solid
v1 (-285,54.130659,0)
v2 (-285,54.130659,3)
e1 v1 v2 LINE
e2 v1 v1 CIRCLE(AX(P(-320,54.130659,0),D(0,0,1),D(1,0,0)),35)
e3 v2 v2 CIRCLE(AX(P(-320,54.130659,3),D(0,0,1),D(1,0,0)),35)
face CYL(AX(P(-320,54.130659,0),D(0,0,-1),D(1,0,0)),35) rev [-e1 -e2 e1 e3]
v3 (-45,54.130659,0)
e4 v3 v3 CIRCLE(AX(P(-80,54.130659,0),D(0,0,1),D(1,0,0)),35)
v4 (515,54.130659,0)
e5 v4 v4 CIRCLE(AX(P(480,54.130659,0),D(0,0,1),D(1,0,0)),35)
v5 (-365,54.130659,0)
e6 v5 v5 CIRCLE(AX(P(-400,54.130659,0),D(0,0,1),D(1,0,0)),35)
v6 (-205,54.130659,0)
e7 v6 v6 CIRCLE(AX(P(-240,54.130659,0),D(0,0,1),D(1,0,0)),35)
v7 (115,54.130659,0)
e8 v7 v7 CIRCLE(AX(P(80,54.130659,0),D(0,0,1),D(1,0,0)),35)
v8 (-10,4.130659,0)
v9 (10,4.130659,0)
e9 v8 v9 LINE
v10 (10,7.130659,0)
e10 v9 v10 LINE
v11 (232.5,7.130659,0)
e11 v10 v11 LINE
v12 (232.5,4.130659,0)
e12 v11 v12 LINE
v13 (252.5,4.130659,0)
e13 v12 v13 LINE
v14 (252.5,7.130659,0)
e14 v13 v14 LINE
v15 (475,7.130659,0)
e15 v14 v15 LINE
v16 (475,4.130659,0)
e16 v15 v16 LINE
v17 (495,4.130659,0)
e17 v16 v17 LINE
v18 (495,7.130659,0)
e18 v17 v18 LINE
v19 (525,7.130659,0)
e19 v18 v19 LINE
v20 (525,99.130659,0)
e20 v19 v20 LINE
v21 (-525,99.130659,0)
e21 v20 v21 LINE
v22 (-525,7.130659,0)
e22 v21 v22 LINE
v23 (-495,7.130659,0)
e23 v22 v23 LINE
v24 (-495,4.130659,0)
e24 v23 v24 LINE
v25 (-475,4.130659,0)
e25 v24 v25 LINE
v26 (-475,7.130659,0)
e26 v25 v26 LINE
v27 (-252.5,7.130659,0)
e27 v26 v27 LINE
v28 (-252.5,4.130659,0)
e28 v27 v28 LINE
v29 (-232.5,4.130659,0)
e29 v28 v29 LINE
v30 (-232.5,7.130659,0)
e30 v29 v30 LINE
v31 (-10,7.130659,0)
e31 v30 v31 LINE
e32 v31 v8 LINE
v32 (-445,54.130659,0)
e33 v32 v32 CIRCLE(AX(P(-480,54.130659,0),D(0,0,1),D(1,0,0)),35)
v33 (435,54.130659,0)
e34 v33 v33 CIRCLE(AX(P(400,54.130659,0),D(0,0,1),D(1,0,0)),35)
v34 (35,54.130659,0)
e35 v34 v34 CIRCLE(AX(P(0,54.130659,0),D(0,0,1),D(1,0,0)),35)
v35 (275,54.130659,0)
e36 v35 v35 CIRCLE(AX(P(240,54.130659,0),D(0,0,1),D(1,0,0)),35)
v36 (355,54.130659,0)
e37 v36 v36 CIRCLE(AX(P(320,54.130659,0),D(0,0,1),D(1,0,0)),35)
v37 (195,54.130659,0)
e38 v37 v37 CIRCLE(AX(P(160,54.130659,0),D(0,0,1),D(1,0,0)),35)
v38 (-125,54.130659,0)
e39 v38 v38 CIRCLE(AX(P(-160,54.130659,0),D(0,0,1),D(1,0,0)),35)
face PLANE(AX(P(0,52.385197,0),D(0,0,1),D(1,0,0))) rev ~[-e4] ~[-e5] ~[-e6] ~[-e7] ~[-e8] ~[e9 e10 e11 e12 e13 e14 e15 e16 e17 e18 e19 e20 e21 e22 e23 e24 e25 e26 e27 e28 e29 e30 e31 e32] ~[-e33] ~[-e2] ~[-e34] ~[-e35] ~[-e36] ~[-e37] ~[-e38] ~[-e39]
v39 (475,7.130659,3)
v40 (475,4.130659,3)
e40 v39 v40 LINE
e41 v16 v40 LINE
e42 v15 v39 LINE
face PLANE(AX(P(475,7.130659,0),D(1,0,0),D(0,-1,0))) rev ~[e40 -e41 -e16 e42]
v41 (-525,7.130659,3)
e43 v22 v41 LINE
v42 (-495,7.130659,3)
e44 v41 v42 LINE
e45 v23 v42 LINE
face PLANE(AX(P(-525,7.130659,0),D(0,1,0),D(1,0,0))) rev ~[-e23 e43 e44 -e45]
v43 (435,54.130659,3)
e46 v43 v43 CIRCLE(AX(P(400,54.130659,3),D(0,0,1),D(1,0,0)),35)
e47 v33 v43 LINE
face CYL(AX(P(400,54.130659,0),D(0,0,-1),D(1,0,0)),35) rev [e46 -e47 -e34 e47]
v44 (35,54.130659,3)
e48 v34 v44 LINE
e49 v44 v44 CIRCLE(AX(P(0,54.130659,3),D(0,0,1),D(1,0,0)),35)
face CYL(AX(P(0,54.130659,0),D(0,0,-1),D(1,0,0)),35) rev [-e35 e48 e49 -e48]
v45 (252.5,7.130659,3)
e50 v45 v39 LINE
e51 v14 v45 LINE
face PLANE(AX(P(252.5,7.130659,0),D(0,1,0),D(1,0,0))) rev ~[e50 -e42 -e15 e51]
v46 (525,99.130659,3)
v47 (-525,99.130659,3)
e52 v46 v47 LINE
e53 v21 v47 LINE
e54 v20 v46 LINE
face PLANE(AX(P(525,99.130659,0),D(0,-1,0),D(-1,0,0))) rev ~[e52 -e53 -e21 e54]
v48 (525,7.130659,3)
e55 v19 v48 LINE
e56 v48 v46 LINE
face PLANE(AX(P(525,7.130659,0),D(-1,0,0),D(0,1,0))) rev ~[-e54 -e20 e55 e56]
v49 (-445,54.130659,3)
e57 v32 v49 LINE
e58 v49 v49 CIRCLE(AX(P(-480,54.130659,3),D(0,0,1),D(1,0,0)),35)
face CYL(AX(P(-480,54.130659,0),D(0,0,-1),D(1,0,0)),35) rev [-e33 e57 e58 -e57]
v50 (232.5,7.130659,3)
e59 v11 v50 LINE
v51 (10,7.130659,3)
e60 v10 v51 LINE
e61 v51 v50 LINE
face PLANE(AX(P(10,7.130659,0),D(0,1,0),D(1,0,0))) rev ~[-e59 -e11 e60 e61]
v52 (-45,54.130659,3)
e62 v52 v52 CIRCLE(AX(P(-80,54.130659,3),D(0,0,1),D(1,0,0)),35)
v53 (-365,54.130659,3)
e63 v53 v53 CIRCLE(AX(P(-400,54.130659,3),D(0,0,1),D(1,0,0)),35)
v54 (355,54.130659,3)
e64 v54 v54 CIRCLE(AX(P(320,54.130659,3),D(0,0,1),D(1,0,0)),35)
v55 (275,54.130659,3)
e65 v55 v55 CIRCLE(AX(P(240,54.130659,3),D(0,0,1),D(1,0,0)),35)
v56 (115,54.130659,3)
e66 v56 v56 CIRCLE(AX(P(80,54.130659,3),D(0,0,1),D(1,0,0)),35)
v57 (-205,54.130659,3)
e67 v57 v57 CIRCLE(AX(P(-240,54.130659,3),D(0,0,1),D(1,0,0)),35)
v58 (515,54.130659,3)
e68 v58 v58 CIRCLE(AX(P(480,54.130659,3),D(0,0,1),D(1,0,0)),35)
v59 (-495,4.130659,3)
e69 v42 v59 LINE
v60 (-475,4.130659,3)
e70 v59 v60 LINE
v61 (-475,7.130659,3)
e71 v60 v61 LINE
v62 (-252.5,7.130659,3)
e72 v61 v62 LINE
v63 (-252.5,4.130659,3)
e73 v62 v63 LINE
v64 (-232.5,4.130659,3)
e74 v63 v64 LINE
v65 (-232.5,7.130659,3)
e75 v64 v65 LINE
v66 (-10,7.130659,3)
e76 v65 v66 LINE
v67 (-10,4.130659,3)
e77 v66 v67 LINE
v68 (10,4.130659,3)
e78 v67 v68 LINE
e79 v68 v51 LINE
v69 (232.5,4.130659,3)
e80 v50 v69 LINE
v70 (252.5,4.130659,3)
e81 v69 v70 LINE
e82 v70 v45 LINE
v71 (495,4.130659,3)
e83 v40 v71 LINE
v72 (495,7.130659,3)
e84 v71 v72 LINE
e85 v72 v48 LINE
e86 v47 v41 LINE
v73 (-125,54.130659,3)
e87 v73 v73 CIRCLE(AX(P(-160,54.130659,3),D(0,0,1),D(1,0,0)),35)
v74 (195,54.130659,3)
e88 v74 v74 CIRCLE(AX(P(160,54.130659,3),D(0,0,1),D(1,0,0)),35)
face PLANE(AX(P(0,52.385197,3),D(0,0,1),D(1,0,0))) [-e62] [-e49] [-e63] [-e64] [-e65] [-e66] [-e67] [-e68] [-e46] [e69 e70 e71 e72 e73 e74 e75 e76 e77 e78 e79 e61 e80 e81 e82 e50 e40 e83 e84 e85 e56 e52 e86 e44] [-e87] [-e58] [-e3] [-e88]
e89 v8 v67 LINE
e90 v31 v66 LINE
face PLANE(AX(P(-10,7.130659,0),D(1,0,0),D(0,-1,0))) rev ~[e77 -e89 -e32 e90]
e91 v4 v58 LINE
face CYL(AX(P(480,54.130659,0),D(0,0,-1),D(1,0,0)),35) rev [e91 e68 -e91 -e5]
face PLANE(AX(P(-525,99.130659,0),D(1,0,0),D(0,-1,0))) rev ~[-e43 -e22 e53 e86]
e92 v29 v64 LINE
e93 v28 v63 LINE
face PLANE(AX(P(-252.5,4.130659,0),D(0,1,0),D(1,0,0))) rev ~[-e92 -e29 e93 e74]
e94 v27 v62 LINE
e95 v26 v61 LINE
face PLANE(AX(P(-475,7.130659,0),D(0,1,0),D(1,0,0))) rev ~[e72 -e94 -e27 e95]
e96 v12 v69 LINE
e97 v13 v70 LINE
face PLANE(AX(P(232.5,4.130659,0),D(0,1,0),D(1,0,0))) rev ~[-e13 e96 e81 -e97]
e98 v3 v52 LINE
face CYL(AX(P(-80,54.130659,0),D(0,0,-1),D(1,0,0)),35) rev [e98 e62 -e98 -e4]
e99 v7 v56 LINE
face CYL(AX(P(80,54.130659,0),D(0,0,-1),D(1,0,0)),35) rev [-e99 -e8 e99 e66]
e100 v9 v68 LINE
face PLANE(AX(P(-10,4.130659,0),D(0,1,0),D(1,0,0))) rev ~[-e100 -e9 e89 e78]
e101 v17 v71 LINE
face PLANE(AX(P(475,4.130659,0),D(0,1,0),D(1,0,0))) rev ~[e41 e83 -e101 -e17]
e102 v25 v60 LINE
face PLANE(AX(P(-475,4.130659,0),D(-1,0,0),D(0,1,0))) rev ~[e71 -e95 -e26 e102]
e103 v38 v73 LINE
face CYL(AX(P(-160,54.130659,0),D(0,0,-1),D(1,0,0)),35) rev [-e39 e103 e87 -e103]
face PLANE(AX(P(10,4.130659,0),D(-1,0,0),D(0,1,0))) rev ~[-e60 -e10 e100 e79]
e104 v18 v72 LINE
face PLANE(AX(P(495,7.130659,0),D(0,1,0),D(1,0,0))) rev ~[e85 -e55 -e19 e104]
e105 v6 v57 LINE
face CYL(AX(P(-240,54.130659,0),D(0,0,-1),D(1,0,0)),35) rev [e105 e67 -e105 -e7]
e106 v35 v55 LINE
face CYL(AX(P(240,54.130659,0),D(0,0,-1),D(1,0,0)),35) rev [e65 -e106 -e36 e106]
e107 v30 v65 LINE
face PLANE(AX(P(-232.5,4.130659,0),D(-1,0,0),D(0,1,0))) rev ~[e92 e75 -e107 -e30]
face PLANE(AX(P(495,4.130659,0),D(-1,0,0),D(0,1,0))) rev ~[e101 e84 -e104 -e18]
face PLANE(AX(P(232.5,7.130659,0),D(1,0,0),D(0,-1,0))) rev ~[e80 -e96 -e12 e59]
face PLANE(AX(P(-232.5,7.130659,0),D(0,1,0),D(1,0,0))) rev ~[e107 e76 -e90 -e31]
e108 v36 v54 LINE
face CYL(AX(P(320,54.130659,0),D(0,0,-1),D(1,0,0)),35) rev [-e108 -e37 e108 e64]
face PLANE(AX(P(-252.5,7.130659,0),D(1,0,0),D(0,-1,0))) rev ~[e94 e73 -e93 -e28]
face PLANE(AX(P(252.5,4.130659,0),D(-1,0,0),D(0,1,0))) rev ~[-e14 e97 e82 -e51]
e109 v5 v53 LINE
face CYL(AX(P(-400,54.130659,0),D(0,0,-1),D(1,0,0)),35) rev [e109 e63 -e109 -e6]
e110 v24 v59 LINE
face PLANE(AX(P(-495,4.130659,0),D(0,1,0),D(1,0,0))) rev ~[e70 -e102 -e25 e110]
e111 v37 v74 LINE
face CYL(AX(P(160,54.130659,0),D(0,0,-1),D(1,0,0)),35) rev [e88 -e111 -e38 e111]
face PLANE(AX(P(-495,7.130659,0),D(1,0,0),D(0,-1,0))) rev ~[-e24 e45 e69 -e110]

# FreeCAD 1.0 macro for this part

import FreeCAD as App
import Part
import Sketcher

doc = App.newDocument("Part")
body = doc.addObject("PartDesign::Body", "Body")

# Sketch on XY plane
sketch1 = body.newObject("Sketcher::SketchObject", "Sketch")
sketch1.AttachmentSupport = (doc.getObject("XY_Plane"), [""])
sketch1.MapMode = "FlatFace"
sketch1.addGeometry(Part.LineSegment(App.Vector(525, 99.130659, 0), App.Vector(-525, 99.130659, 0)), False)
sketch1.addGeometry(Part.LineSegment(App.Vector(-525, 99.130659, 0), App.Vector(-525, 7.130659, 0)), False)
sketch1.addGeometry(Part.LineSegment(App.Vector(-525, 7.130659, 0), App.Vector(-495, 7.130659, 0)), False)
sketch1.addGeometry(Part.LineSegment(App.Vector(-495, 7.130659, 0), App.Vector(-495, 4.130659, 0)), False)
sketch1.addGeometry(Part.LineSegment(App.Vector(-495, 4.130659, 0), App.Vector(-475, 4.130659, 0)), False)
sketch1.addGeometry(Part.LineSegment(App.Vector(-475, 4.130659, 0), App.Vector(-475, 7.130659, 0)), False)
sketch1.addGeometry(Part.LineSegment(App.Vector(-475, 7.130659, 0), App.Vector(-252.5, 7.130659, 0)), False)
sketch1.addGeometry(Part.LineSegment(App.Vector(-252.5, 7.130659, 0), App.Vector(-252.5, 4.130659, 0)), False)
sketch1.addGeometry(Part.LineSegment(App.Vector(-252.5, 4.130659, 0), App.Vector(-232.5, 4.130659, 0)), False)
sketch1.addGeometry(Part.LineSegment(App.Vector(-232.5, 4.130659, 0), App.Vector(-232.5, 7.130659, 0)), False)
sketch1.addGeometry(Part.LineSegment(App.Vector(-232.5, 7.130659, 0), App.Vector(-10, 7.130659, 0)), False)
sketch1.addGeometry(Part.LineSegment(App.Vector(-10, 7.130659, 0), App.Vector(-10, 4.130659, 0)), False)
sketch1.addGeometry(Part.LineSegment(App.Vector(-10, 4.130659, 0), App.Vector(10, 4.130659, 0)), False)
sketch1.addGeometry(Part.LineSegment(App.Vector(10, 4.130659, 0), App.Vector(10, 7.130659, 0)), False)
sketch1.addGeometry(Part.LineSegment(App.Vector(10, 7.130659, 0), App.Vector(232.5, 7.130659, 0)), False)
sketch1.addGeometry(Part.LineSegment(App.Vector(232.5, 7.130659, 0), App.Vector(232.5, 4.130659, 0)), False)
sketch1.addGeometry(Part.LineSegment(App.Vector(232.5, 4.130659, 0), App.Vector(252.5, 4.130659, 0)), False)
sketch1.addGeometry(Part.LineSegment(App.Vector(252.5, 4.130659, 0), App.Vector(252.5, 7.130659, 0)), False)
sketch1.addGeometry(Part.LineSegment(App.Vector(252.5, 7.130659, 0), App.Vector(475, 7.130659, 0)), False)
sketch1.addGeometry(Part.LineSegment(App.Vector(475, 7.130659, 0), App.Vector(475, 4.130659, 0)), False)
sketch1.addGeometry(Part.LineSegment(App.Vector(475, 4.130659, 0), App.Vector(495, 4.130659, 0)), False)
sketch1.addGeometry(Part.LineSegment(App.Vector(495, 4.130659, 0), App.Vector(495, 7.130659, 0)), False)
sketch1.addGeometry(Part.LineSegment(App.Vector(495, 7.130659, 0), App.Vector(525, 7.130659, 0)), False)
sketch1.addGeometry(Part.LineSegment(App.Vector(525, 7.130659, 0), App.Vector(525, 99.130659, 0)), False)
sketch1.addGeometry(Part.Circle(App.Vector(-480, 54.130659, 0), App.Vector(0, 0, 1), 35), False)
sketch1.addGeometry(Part.Circle(App.Vector(-400, 54.130659, 0), App.Vector(0, 0, 1), 35), False)
sketch1.addGeometry(Part.Circle(App.Vector(-320, 54.130659, 0), App.Vector(0, 0, 1), 35), False)
sketch1.addGeometry(Part.Circle(App.Vector(-240, 54.130659, 0), App.Vector(0, 0, 1), 35), False)
sketch1.addGeometry(Part.Circle(App.Vector(-160, 54.130659, 0), App.Vector(0, 0, 1), 35), False)
sketch1.addGeometry(Part.Circle(App.Vector(-80, 54.130659, 0), App.Vector(0, 0, 1), 35), False)
sketch1.addGeometry(Part.Circle(App.Vector(0, 54.130659, 0), App.Vector(0, 0, 1), 35), False)
sketch1.addGeometry(Part.Circle(App.Vector(80, 54.130659, 0), App.Vector(0, 0, 1), 35), False)
sketch1.addGeometry(Part.Circle(App.Vector(160, 54.130659, 0), App.Vector(0, 0, 1), 35), False)
sketch1.addGeometry(Part.Circle(App.Vector(240, 54.130659, 0), App.Vector(0, 0, 1), 35), False)
sketch1.addGeometry(Part.Circle(App.Vector(320, 54.130659, 0), App.Vector(0, 0, 1), 35), False)
sketch1.addGeometry(Part.Circle(App.Vector(400, 54.130659, 0), App.Vector(0, 0, 1), 35), False)
sketch1.addGeometry(Part.Circle(App.Vector(480, 54.130659, 0), App.Vector(0, 0, 1), 35), False)
sketch1.addConstraint(Sketcher.Constraint("Coincident", 0, 2, 1, 1))
sketch1.addConstraint(Sketcher.Constraint("Coincident", 1, 2, 2, 1))
sketch1.addConstraint(Sketcher.Constraint("Coincident", 2, 2, 3, 1))
sketch1.addConstraint(Sketcher.Constraint("Coincident", 3, 2, 4, 1))
sketch1.addConstraint(Sketcher.Constraint("Coincident", 4, 2, 5, 1))
sketch1.addConstraint(Sketcher.Constraint("Coincident", 5, 2, 6, 1))
sketch1.addConstraint(Sketcher.Constraint("Coincident", 6, 2, 7, 1))
sketch1.addConstraint(Sketcher.Constraint("Coincident", 7, 2, 8, 1))
sketch1.addConstraint(Sketcher.Constraint("Coincident", 8, 2, 9, 1))
sketch1.addConstraint(Sketcher.Constraint("Coincident", 9, 2, 10, 1))
sketch1.addConstraint(Sketcher.Constraint("Coincident", 10, 2, 11, 1))
sketch1.addConstraint(Sketcher.Constraint("Coincident", 11, 2, 12, 1))
sketch1.addConstraint(Sketcher.Constraint("Coincident", 12, 2, 13, 1))
sketch1.addConstraint(Sketcher.Constraint("Coincident", 13, 2, 14, 1))
sketch1.addConstraint(Sketcher.Constraint("Coincident", 14, 2, 15, 1))
sketch1.addConstraint(Sketcher.Constraint("Coincident", 15, 2, 16, 1))
sketch1.addConstraint(Sketcher.Constraint("Coincident", 16, 2, 17, 1))
sketch1.addConstraint(Sketcher.Constraint("Coincident", 17, 2, 18, 1))
sketch1.addConstraint(Sketcher.Constraint("Coincident", 18, 2, 19, 1))
sketch1.addConstraint(Sketcher.Constraint("Coincident", 19, 2, 20, 1))
sketch1.addConstraint(Sketcher.Constraint("Coincident", 20, 2, 21, 1))
sketch1.addConstraint(Sketcher.Constraint("Coincident", 21, 2, 22, 1))
sketch1.addConstraint(Sketcher.Constraint("Coincident", 22, 2, 23, 1))
sketch1.addConstraint(Sketcher.Constraint("Coincident", 23, 2, 0, 1))
sketch1.addConstraint(Sketcher.Constraint("Horizontal", 0))
sketch1.addConstraint(Sketcher.Constraint("Vertical", 1))
sketch1.addConstraint(Sketcher.Constraint("Horizontal", 2))
sketch1.addConstraint(Sketcher.Constraint("Vertical", 3))
sketch1.addConstraint(Sketcher.Constraint("Horizontal", 4))
sketch1.addConstraint(Sketcher.Constraint("Vertical", 5))
sketch1.addConstraint(Sketcher.Constraint("Horizontal", 6))
sketch1.addConstraint(Sketcher.Constraint("Vertical", 7))
sketch1.addConstraint(Sketcher.Constraint("Horizontal", 8))
sketch1.addConstraint(Sketcher.Constraint("Vertical", 9))
sketch1.addConstraint(Sketcher.Constraint("Horizontal", 10))
sketch1.addConstraint(Sketcher.Constraint("Vertical", 11))
sketch1.addConstraint(Sketcher.Constraint("Horizontal", 12))
sketch1.addConstraint(Sketcher.Constraint("Vertical", 13))
sketch1.addConstraint(Sketcher.Constraint("Horizontal", 14))
sketch1.addConstraint(Sketcher.Constraint("Vertical", 15))
sketch1.addConstraint(Sketcher.Constraint("Horizontal", 16))
sketch1.addConstraint(Sketcher.Constraint("Vertical", 17))
sketch1.addConstraint(Sketcher.Constraint("Horizontal", 18))
sketch1.addConstraint(Sketcher.Constraint("Vertical", 19))
sketch1.addConstraint(Sketcher.Constraint("Horizontal", 20))
sketch1.addConstraint(Sketcher.Constraint("Vertical", 21))
sketch1.addConstraint(Sketcher.Constraint("Horizontal", 22))
sketch1.addConstraint(Sketcher.Constraint("Vertical", 23))
sketch1.addConstraint(Sketcher.Constraint("Equal", 24, 25))
sketch1.addConstraint(Sketcher.Constraint("Equal", 25, 26))
sketch1.addConstraint(Sketcher.Constraint("Equal", 26, 27))
sketch1.addConstraint(Sketcher.Constraint("Equal", 27, 28))
sketch1.addConstraint(Sketcher.Constraint("Equal", 28, 29))
sketch1.addConstraint(Sketcher.Constraint("Equal", 29, 30))
sketch1.addConstraint(Sketcher.Constraint("Equal", 30, 31))
sketch1.addConstraint(Sketcher.Constraint("Equal", 31, 32))
sketch1.addConstraint(Sketcher.Constraint("Equal", 32, 33))
sketch1.addConstraint(Sketcher.Constraint("Equal", 33, 34))
sketch1.addConstraint(Sketcher.Constraint("Equal", 34, 35))
sketch1.addConstraint(Sketcher.Constraint("Equal", 35, 36))
sketch1.addConstraint(Sketcher.Constraint("Symmetric", 29, 3, 31, 3, -2))
sketch1.addConstraint(Sketcher.Constraint("Symmetric", 28, 3, 32, 3, -2))
sketch1.addConstraint(Sketcher.Constraint("Symmetric", 27, 3, 33, 3, -2))
sketch1.addConstraint(Sketcher.Constraint("Symmetric", 26, 3, 34, 3, -2))
sketch1.addConstraint(Sketcher.Constraint("Symmetric", 25, 3, 35, 3, -2))
sketch1.addConstraint(Sketcher.Constraint("Symmetric", 24, 3, 36, 3, -2))
sketch1.addConstraint(Sketcher.Constraint("Symmetric", 10, 2, 13, 2, -2))
sketch1.addConstraint(Sketcher.Constraint("Symmetric", 8, 2, 15, 2, -2))
sketch1.addConstraint(Sketcher.Constraint("Symmetric", 6, 2, 17, 2, -2))
sketch1.addConstraint(Sketcher.Constraint("Symmetric", 4, 2, 19, 2, -2))
sketch1.addConstraint(Sketcher.Constraint("Symmetric", 2, 2, 21, 2, -2))
sketch1.addConstraint(Sketcher.Constraint("PointOnObject", 30, 3, -2))
sketch1.addConstraint(Sketcher.Constraint("Horizontal", 24, 3, 25, 3))
sketch1.addConstraint(Sketcher.Constraint("Horizontal", 25, 3, 26, 3))
sketch1.addConstraint(Sketcher.Constraint("Horizontal", 26, 3, 27, 3))
sketch1.addConstraint(Sketcher.Constraint("Horizontal", 27, 3, 28, 3))
sketch1.addConstraint(Sketcher.Constraint("Horizontal", 28, 3, 29, 3))
sketch1.addConstraint(Sketcher.Constraint("Horizontal", 29, 3, 30, 3))
sketch1.addConstraint(Sketcher.Constraint("Horizontal", 2, 2, 5, 2))
sketch1.addConstraint(Sketcher.Constraint("Horizontal", 4, 2, 7, 2))
sketch1.addConstraint(Sketcher.Constraint("Horizontal", 6, 2, 9, 2))
sketch1.addConstraint(Sketcher.Constraint("Horizontal", 8, 2, 11, 2))
sketch1.addConstraint(Sketcher.Constraint("Equal", 4, 8))
sketch1.addConstraint(Sketcher.Constraint("Equal", 6, 10))
sketch1.addConstraint(Sketcher.Constraint("Equal", 8, 12))
sketch1.addConstraint(Sketcher.Constraint("Equal", 2, 22))
sketch1.addConstraint(Sketcher.Constraint("Diameter", 24, 70.0))
sketch1.addConstraint(Sketcher.Constraint("DistanceX", 0, 2, 0, 1, 1050.0))
sketch1.addConstraint(Sketcher.Constraint("DistanceX", 2, 1, 2, 2, 30.0))
sketch1.addConstraint(Sketcher.Constraint("DistanceX", 4, 1, 4, 2, 20.0))
sketch1.addConstraint(Sketcher.Constraint("DistanceY", 1, 2, 1, 1, 92.0))
sketch1.addConstraint(Sketcher.Constraint("DistanceY", 3, 2, 3, 1, 3.0))
sketch1.addConstraint(Sketcher.Constraint("DistanceX", 24, 3, -1, 1, 480.0))
sketch1.addConstraint(Sketcher.Constraint("DistanceX", 25, 3, -1, 1, 400.0))
sketch1.addConstraint(Sketcher.Constraint("DistanceX", 26, 3, -1, 1, 320.0))
sketch1.addConstraint(Sketcher.Constraint("DistanceX", 27, 3, -1, 1, 240.0))
sketch1.addConstraint(Sketcher.Constraint("DistanceX", 28, 3, -1, 1, 160.0))
sketch1.addConstraint(Sketcher.Constraint("DistanceX", 29, 3, -1, 1, 80.0))
sketch1.addConstraint(Sketcher.Constraint("DistanceY", 24, 3, 0, 2, 45.0))
sketch1.addConstraint(Sketcher.Constraint("DistanceY", -1, 1, 24, 3, 54.130659))
pad1 = body.newObject("PartDesign::Pad", "Pad")
pad1.Profile = sketch1
pad1.Length = 3

doc.recompute()
